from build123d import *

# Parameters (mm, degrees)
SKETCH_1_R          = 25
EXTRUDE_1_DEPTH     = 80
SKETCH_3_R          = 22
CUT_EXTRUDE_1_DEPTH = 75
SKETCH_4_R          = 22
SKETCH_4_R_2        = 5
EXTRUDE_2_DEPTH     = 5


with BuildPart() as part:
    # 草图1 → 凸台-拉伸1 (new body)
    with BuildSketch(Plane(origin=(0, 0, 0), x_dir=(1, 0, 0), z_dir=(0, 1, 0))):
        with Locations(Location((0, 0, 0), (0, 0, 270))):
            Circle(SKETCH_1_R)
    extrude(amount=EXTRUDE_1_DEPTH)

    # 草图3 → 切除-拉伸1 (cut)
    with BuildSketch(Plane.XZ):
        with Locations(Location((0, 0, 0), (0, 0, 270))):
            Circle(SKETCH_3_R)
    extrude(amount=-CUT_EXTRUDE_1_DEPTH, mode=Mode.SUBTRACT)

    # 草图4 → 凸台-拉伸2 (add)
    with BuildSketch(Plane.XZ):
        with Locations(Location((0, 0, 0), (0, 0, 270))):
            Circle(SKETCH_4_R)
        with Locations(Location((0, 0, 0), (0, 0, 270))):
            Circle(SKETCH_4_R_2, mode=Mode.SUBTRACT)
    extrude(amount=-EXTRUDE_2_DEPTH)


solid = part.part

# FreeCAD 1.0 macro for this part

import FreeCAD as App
import Part
import Sketcher
from FreeCAD import Vector

doc = App.newDocument("Part")
body = doc.addObject("PartDesign::Body", "Body")

# Sketch on XZ plane
sketch1 = body.newObject("Sketcher::SketchObject", "Sketch")
sketch1.AttachmentSupport = (doc.getObject("XZ_Plane"), [""])
sketch1.MapMode = "FlatFace"
sketch1.addGeometry(Part.Circle(Vector(0, 0, 0), Vector(0, 0, 1), 25), False)
sketch1.addConstraint(Sketcher.Constraint("Coincident", 0, 3, -1, 1))
sketch1.addConstraint(Sketcher.Constraint("Diameter", 0, 50.0))
pad1 = body.newObject("PartDesign::Pad", "Pad")
pad1.Profile = sketch1
pad1.Length = 80
pad1.Reversed = True

# Sketch on XZ plane
sketch2 = body.newObject("Sketcher::SketchObject", "Sketch001")
sketch2.AttachmentSupport = (doc.getObject("XZ_Plane"), [""])
sketch2.MapMode = "FlatFace"
sketch2.addGeometry(Part.Circle(Vector(0, 0, 0), Vector(0, 0, 1), 22), False)
sketch2.addConstraint(Sketcher.Constraint("Coincident", 0, 3, -1, 1))
sketch2.addConstraint(Sketcher.Constraint("Diameter", 0, 44.0))
pocket1 = body.newObject("PartDesign::Pocket", "Pocket")
pocket1.Profile = sketch2
pocket1.Length = 75

# Sketch on XZ plane
sketch3 = body.newObject("Sketcher::SketchObject", "Sketch002")
sketch3.AttachmentSupport = (doc.getObject("XZ_Plane"), [""])
sketch3.MapMode = "FlatFace"
sketch3.addGeometry(Part.Circle(Vector(0, 0, 0), Vector(0, 0, 1), 22), False)
sketch3.addGeometry(Part.Circle(Vector(0, 0, 0), Vector(0, 0, 1), 5), False)
sketch3.addConstraint(Sketcher.Constraint("Coincident", 0, 3, -1, 1))
sketch3.addConstraint(Sketcher.Constraint("Coincident", 1, 3, -1, 1))
sketch3.addConstraint(Sketcher.Constraint("Diameter", 0, 44.0))
sketch3.addConstraint(Sketcher.Constraint("Diameter", 1, 10.0))
pad2 = body.newObject("PartDesign::Pad", "Pad001")
pad2.Profile = sketch3
pad2.Length = 5
pad2.Reversed = True

doc.recompute()
